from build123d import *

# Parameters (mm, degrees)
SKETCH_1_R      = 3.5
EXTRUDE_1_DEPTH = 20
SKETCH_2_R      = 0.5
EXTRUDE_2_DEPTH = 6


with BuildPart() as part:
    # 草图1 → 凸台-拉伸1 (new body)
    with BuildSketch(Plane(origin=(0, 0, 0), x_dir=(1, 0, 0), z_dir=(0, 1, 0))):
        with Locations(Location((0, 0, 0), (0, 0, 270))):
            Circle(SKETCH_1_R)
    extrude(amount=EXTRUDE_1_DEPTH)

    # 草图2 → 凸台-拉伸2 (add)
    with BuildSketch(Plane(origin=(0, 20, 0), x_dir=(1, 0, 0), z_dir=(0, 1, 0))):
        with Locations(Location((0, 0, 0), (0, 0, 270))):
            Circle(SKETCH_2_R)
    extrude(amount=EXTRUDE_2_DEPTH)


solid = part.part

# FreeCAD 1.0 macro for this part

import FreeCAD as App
import Part
import Sketcher
from FreeCAD import Vector

doc = App.newDocument("Part")
body = doc.addObject("PartDesign::Body", "Body")

# Sketch on XZ plane
sketch1 = body.newObject("Sketcher::SketchObject", "Sketch")
sketch1.AttachmentSupport = (doc.getObject("XZ_Plane"), [""])
sketch1.MapMode = "FlatFace"
sketch1.addGeometry(Part.Circle(Vector(0, 0, 0), Vector(0, 0, 1), 3.5), False)
sketch1.addConstraint([
    Sketcher.Constraint("Coincident", 0, 3, -1, 1),
    Sketcher.Constraint("Diameter", 0, 7.0),
])
pad1 = body.newObject("PartDesign::Pad", "Pad")
pad1.Profile = sketch1
pad1.Length = 20
pad1.Reversed = True

# Sketch on XZ plane
sketch2 = body.newObject("Sketcher::SketchObject", "Sketch001")
sketch2.AttachmentSupport = (doc.getObject("XZ_Plane"), [""])
sketch2.MapMode = "FlatFace"
sketch2.AttachmentOffset = App.Placement(Vector(0, 0, -20), App.Rotation())
sketch2.addGeometry(Part.Circle(Vector(0, 0, 0), Vector(0, 0, 1), 0.5), False)
sketch2.addConstraint([
    Sketcher.Constraint("Coincident", 0, 3, -1, 1),
    Sketcher.Constraint("Diameter", 0, 1.0),
])
pad2 = body.newObject("PartDesign::Pad", "Pad001")
pad2.Profile = sketch2
pad2.Length = 6
pad2.Reversed = True

doc.recompute()
